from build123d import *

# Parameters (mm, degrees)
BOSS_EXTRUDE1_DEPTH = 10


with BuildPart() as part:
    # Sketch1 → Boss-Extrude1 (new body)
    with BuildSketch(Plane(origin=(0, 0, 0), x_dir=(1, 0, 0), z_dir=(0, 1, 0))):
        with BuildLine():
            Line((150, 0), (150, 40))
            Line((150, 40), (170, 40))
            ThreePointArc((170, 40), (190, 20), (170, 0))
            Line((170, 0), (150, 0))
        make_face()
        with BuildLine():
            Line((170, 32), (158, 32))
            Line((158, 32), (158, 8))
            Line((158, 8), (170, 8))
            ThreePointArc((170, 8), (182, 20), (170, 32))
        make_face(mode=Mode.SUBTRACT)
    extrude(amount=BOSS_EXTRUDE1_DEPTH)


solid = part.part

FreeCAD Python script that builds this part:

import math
import FreeCAD as App
import Part
import Sketcher

V = App.Vector
Q = App.Units.Quantity

doc = App.newDocument("Part")
body = doc.addObject("PartDesign::Body", "Body")

# Sketch on XZ plane
sketch1 = body.newObject("Sketcher::SketchObject", "Sketch")
sketch1.AttachmentSupport = (doc.getObject("XZ_Plane"), [""])
sketch1.MapMode = "FlatFace"
sketch1.addGeometry(Part.LineSegment(V(150, -40, 0), V(150, 0, 0)), False)
sketch1.addGeometry(Part.LineSegment(V(150, 0, 0), V(170, 0, 0)), False)
sketch1.addGeometry(Part.ArcOfCircle(Part.Circle(V(170, -20, 0), V(0, 0, 1), 20), math.radians(-90), math.radians(90)), False)
sketch1.addGeometry(Part.LineSegment(V(170, -40, 0), V(150, -40, 0)), False)
sketch1.addGeometry(Part.ArcOfCircle(Part.Circle(V(170, -20, 0), V(0, 0, 1), 12), math.radians(-90), math.radians(90)), False)
sketch1.addGeometry(Part.LineSegment(V(170, -8, 0), V(158, -8, 0)), False)
sketch1.addGeometry(Part.LineSegment(V(158, -8, 0), V(158, -32, 0)), False)
sketch1.addGeometry(Part.LineSegment(V(158, -32, 0), V(170, -32, 0)), False)
sketch1.addConstraint(Sketcher.Constraint("Coincident", 0, 2, 1, 1))
sketch1.addConstraint(Sketcher.Constraint("Tangent", 1, 2, 2, 2))
sketch1.addConstraint(Sketcher.Constraint("Tangent", 2, 1, 3, 1))
sketch1.addConstraint(Sketcher.Constraint("Coincident", 3, 2, 0, 1))
sketch1.addConstraint(Sketcher.Constraint("Tangent", 4, 2, 5, 1))
sketch1.addConstraint(Sketcher.Constraint("Coincident", 5, 2, 6, 1))
sketch1.addConstraint(Sketcher.Constraint("Coincident", 6, 2, 7, 1))
sketch1.addConstraint(Sketcher.Constraint("Tangent", 7, 2, 4, 1))
sketch1.addConstraint(Sketcher.Constraint("Vertical", 0))
sketch1.addConstraint(Sketcher.Constraint("Horizontal", 1))
sketch1.addConstraint(Sketcher.Constraint("Horizontal", 3))
sketch1.addConstraint(Sketcher.Constraint("Horizontal", 5))
sketch1.addConstraint(Sketcher.Constraint("Vertical", 6))
sketch1.addConstraint(Sketcher.Constraint("Horizontal", 7))
sketch1.addConstraint(Sketcher.Constraint("Coincident", 4, 3, 2, 3))
sketch1.addConstraint(Sketcher.Constraint("PointOnObject", 0, 2, -1))
sketch1.addConstraint(Sketcher.Constraint("Radius", 2, Q("20 mm")))
sketch1.addConstraint(Sketcher.Constraint("Radius", 4, Q("12 mm")))
sketch1.addConstraint(Sketcher.Constraint("DistanceX", 1, 1, 1, 2, Q("20 mm")))
sketch1.addConstraint(Sketcher.Constraint("DistanceX", 5, 2, 5, 1, Q("12 mm")))
sketch1.addConstraint(Sketcher.Constraint("DistanceX", -1, 1, 2, 3, Q("170 mm")))
pad1 = body.newObject("PartDesign::Pad", "Pad")
pad1.Profile = sketch1
pad1.Length = 10
pad1.Reversed = True

doc.recompute()
